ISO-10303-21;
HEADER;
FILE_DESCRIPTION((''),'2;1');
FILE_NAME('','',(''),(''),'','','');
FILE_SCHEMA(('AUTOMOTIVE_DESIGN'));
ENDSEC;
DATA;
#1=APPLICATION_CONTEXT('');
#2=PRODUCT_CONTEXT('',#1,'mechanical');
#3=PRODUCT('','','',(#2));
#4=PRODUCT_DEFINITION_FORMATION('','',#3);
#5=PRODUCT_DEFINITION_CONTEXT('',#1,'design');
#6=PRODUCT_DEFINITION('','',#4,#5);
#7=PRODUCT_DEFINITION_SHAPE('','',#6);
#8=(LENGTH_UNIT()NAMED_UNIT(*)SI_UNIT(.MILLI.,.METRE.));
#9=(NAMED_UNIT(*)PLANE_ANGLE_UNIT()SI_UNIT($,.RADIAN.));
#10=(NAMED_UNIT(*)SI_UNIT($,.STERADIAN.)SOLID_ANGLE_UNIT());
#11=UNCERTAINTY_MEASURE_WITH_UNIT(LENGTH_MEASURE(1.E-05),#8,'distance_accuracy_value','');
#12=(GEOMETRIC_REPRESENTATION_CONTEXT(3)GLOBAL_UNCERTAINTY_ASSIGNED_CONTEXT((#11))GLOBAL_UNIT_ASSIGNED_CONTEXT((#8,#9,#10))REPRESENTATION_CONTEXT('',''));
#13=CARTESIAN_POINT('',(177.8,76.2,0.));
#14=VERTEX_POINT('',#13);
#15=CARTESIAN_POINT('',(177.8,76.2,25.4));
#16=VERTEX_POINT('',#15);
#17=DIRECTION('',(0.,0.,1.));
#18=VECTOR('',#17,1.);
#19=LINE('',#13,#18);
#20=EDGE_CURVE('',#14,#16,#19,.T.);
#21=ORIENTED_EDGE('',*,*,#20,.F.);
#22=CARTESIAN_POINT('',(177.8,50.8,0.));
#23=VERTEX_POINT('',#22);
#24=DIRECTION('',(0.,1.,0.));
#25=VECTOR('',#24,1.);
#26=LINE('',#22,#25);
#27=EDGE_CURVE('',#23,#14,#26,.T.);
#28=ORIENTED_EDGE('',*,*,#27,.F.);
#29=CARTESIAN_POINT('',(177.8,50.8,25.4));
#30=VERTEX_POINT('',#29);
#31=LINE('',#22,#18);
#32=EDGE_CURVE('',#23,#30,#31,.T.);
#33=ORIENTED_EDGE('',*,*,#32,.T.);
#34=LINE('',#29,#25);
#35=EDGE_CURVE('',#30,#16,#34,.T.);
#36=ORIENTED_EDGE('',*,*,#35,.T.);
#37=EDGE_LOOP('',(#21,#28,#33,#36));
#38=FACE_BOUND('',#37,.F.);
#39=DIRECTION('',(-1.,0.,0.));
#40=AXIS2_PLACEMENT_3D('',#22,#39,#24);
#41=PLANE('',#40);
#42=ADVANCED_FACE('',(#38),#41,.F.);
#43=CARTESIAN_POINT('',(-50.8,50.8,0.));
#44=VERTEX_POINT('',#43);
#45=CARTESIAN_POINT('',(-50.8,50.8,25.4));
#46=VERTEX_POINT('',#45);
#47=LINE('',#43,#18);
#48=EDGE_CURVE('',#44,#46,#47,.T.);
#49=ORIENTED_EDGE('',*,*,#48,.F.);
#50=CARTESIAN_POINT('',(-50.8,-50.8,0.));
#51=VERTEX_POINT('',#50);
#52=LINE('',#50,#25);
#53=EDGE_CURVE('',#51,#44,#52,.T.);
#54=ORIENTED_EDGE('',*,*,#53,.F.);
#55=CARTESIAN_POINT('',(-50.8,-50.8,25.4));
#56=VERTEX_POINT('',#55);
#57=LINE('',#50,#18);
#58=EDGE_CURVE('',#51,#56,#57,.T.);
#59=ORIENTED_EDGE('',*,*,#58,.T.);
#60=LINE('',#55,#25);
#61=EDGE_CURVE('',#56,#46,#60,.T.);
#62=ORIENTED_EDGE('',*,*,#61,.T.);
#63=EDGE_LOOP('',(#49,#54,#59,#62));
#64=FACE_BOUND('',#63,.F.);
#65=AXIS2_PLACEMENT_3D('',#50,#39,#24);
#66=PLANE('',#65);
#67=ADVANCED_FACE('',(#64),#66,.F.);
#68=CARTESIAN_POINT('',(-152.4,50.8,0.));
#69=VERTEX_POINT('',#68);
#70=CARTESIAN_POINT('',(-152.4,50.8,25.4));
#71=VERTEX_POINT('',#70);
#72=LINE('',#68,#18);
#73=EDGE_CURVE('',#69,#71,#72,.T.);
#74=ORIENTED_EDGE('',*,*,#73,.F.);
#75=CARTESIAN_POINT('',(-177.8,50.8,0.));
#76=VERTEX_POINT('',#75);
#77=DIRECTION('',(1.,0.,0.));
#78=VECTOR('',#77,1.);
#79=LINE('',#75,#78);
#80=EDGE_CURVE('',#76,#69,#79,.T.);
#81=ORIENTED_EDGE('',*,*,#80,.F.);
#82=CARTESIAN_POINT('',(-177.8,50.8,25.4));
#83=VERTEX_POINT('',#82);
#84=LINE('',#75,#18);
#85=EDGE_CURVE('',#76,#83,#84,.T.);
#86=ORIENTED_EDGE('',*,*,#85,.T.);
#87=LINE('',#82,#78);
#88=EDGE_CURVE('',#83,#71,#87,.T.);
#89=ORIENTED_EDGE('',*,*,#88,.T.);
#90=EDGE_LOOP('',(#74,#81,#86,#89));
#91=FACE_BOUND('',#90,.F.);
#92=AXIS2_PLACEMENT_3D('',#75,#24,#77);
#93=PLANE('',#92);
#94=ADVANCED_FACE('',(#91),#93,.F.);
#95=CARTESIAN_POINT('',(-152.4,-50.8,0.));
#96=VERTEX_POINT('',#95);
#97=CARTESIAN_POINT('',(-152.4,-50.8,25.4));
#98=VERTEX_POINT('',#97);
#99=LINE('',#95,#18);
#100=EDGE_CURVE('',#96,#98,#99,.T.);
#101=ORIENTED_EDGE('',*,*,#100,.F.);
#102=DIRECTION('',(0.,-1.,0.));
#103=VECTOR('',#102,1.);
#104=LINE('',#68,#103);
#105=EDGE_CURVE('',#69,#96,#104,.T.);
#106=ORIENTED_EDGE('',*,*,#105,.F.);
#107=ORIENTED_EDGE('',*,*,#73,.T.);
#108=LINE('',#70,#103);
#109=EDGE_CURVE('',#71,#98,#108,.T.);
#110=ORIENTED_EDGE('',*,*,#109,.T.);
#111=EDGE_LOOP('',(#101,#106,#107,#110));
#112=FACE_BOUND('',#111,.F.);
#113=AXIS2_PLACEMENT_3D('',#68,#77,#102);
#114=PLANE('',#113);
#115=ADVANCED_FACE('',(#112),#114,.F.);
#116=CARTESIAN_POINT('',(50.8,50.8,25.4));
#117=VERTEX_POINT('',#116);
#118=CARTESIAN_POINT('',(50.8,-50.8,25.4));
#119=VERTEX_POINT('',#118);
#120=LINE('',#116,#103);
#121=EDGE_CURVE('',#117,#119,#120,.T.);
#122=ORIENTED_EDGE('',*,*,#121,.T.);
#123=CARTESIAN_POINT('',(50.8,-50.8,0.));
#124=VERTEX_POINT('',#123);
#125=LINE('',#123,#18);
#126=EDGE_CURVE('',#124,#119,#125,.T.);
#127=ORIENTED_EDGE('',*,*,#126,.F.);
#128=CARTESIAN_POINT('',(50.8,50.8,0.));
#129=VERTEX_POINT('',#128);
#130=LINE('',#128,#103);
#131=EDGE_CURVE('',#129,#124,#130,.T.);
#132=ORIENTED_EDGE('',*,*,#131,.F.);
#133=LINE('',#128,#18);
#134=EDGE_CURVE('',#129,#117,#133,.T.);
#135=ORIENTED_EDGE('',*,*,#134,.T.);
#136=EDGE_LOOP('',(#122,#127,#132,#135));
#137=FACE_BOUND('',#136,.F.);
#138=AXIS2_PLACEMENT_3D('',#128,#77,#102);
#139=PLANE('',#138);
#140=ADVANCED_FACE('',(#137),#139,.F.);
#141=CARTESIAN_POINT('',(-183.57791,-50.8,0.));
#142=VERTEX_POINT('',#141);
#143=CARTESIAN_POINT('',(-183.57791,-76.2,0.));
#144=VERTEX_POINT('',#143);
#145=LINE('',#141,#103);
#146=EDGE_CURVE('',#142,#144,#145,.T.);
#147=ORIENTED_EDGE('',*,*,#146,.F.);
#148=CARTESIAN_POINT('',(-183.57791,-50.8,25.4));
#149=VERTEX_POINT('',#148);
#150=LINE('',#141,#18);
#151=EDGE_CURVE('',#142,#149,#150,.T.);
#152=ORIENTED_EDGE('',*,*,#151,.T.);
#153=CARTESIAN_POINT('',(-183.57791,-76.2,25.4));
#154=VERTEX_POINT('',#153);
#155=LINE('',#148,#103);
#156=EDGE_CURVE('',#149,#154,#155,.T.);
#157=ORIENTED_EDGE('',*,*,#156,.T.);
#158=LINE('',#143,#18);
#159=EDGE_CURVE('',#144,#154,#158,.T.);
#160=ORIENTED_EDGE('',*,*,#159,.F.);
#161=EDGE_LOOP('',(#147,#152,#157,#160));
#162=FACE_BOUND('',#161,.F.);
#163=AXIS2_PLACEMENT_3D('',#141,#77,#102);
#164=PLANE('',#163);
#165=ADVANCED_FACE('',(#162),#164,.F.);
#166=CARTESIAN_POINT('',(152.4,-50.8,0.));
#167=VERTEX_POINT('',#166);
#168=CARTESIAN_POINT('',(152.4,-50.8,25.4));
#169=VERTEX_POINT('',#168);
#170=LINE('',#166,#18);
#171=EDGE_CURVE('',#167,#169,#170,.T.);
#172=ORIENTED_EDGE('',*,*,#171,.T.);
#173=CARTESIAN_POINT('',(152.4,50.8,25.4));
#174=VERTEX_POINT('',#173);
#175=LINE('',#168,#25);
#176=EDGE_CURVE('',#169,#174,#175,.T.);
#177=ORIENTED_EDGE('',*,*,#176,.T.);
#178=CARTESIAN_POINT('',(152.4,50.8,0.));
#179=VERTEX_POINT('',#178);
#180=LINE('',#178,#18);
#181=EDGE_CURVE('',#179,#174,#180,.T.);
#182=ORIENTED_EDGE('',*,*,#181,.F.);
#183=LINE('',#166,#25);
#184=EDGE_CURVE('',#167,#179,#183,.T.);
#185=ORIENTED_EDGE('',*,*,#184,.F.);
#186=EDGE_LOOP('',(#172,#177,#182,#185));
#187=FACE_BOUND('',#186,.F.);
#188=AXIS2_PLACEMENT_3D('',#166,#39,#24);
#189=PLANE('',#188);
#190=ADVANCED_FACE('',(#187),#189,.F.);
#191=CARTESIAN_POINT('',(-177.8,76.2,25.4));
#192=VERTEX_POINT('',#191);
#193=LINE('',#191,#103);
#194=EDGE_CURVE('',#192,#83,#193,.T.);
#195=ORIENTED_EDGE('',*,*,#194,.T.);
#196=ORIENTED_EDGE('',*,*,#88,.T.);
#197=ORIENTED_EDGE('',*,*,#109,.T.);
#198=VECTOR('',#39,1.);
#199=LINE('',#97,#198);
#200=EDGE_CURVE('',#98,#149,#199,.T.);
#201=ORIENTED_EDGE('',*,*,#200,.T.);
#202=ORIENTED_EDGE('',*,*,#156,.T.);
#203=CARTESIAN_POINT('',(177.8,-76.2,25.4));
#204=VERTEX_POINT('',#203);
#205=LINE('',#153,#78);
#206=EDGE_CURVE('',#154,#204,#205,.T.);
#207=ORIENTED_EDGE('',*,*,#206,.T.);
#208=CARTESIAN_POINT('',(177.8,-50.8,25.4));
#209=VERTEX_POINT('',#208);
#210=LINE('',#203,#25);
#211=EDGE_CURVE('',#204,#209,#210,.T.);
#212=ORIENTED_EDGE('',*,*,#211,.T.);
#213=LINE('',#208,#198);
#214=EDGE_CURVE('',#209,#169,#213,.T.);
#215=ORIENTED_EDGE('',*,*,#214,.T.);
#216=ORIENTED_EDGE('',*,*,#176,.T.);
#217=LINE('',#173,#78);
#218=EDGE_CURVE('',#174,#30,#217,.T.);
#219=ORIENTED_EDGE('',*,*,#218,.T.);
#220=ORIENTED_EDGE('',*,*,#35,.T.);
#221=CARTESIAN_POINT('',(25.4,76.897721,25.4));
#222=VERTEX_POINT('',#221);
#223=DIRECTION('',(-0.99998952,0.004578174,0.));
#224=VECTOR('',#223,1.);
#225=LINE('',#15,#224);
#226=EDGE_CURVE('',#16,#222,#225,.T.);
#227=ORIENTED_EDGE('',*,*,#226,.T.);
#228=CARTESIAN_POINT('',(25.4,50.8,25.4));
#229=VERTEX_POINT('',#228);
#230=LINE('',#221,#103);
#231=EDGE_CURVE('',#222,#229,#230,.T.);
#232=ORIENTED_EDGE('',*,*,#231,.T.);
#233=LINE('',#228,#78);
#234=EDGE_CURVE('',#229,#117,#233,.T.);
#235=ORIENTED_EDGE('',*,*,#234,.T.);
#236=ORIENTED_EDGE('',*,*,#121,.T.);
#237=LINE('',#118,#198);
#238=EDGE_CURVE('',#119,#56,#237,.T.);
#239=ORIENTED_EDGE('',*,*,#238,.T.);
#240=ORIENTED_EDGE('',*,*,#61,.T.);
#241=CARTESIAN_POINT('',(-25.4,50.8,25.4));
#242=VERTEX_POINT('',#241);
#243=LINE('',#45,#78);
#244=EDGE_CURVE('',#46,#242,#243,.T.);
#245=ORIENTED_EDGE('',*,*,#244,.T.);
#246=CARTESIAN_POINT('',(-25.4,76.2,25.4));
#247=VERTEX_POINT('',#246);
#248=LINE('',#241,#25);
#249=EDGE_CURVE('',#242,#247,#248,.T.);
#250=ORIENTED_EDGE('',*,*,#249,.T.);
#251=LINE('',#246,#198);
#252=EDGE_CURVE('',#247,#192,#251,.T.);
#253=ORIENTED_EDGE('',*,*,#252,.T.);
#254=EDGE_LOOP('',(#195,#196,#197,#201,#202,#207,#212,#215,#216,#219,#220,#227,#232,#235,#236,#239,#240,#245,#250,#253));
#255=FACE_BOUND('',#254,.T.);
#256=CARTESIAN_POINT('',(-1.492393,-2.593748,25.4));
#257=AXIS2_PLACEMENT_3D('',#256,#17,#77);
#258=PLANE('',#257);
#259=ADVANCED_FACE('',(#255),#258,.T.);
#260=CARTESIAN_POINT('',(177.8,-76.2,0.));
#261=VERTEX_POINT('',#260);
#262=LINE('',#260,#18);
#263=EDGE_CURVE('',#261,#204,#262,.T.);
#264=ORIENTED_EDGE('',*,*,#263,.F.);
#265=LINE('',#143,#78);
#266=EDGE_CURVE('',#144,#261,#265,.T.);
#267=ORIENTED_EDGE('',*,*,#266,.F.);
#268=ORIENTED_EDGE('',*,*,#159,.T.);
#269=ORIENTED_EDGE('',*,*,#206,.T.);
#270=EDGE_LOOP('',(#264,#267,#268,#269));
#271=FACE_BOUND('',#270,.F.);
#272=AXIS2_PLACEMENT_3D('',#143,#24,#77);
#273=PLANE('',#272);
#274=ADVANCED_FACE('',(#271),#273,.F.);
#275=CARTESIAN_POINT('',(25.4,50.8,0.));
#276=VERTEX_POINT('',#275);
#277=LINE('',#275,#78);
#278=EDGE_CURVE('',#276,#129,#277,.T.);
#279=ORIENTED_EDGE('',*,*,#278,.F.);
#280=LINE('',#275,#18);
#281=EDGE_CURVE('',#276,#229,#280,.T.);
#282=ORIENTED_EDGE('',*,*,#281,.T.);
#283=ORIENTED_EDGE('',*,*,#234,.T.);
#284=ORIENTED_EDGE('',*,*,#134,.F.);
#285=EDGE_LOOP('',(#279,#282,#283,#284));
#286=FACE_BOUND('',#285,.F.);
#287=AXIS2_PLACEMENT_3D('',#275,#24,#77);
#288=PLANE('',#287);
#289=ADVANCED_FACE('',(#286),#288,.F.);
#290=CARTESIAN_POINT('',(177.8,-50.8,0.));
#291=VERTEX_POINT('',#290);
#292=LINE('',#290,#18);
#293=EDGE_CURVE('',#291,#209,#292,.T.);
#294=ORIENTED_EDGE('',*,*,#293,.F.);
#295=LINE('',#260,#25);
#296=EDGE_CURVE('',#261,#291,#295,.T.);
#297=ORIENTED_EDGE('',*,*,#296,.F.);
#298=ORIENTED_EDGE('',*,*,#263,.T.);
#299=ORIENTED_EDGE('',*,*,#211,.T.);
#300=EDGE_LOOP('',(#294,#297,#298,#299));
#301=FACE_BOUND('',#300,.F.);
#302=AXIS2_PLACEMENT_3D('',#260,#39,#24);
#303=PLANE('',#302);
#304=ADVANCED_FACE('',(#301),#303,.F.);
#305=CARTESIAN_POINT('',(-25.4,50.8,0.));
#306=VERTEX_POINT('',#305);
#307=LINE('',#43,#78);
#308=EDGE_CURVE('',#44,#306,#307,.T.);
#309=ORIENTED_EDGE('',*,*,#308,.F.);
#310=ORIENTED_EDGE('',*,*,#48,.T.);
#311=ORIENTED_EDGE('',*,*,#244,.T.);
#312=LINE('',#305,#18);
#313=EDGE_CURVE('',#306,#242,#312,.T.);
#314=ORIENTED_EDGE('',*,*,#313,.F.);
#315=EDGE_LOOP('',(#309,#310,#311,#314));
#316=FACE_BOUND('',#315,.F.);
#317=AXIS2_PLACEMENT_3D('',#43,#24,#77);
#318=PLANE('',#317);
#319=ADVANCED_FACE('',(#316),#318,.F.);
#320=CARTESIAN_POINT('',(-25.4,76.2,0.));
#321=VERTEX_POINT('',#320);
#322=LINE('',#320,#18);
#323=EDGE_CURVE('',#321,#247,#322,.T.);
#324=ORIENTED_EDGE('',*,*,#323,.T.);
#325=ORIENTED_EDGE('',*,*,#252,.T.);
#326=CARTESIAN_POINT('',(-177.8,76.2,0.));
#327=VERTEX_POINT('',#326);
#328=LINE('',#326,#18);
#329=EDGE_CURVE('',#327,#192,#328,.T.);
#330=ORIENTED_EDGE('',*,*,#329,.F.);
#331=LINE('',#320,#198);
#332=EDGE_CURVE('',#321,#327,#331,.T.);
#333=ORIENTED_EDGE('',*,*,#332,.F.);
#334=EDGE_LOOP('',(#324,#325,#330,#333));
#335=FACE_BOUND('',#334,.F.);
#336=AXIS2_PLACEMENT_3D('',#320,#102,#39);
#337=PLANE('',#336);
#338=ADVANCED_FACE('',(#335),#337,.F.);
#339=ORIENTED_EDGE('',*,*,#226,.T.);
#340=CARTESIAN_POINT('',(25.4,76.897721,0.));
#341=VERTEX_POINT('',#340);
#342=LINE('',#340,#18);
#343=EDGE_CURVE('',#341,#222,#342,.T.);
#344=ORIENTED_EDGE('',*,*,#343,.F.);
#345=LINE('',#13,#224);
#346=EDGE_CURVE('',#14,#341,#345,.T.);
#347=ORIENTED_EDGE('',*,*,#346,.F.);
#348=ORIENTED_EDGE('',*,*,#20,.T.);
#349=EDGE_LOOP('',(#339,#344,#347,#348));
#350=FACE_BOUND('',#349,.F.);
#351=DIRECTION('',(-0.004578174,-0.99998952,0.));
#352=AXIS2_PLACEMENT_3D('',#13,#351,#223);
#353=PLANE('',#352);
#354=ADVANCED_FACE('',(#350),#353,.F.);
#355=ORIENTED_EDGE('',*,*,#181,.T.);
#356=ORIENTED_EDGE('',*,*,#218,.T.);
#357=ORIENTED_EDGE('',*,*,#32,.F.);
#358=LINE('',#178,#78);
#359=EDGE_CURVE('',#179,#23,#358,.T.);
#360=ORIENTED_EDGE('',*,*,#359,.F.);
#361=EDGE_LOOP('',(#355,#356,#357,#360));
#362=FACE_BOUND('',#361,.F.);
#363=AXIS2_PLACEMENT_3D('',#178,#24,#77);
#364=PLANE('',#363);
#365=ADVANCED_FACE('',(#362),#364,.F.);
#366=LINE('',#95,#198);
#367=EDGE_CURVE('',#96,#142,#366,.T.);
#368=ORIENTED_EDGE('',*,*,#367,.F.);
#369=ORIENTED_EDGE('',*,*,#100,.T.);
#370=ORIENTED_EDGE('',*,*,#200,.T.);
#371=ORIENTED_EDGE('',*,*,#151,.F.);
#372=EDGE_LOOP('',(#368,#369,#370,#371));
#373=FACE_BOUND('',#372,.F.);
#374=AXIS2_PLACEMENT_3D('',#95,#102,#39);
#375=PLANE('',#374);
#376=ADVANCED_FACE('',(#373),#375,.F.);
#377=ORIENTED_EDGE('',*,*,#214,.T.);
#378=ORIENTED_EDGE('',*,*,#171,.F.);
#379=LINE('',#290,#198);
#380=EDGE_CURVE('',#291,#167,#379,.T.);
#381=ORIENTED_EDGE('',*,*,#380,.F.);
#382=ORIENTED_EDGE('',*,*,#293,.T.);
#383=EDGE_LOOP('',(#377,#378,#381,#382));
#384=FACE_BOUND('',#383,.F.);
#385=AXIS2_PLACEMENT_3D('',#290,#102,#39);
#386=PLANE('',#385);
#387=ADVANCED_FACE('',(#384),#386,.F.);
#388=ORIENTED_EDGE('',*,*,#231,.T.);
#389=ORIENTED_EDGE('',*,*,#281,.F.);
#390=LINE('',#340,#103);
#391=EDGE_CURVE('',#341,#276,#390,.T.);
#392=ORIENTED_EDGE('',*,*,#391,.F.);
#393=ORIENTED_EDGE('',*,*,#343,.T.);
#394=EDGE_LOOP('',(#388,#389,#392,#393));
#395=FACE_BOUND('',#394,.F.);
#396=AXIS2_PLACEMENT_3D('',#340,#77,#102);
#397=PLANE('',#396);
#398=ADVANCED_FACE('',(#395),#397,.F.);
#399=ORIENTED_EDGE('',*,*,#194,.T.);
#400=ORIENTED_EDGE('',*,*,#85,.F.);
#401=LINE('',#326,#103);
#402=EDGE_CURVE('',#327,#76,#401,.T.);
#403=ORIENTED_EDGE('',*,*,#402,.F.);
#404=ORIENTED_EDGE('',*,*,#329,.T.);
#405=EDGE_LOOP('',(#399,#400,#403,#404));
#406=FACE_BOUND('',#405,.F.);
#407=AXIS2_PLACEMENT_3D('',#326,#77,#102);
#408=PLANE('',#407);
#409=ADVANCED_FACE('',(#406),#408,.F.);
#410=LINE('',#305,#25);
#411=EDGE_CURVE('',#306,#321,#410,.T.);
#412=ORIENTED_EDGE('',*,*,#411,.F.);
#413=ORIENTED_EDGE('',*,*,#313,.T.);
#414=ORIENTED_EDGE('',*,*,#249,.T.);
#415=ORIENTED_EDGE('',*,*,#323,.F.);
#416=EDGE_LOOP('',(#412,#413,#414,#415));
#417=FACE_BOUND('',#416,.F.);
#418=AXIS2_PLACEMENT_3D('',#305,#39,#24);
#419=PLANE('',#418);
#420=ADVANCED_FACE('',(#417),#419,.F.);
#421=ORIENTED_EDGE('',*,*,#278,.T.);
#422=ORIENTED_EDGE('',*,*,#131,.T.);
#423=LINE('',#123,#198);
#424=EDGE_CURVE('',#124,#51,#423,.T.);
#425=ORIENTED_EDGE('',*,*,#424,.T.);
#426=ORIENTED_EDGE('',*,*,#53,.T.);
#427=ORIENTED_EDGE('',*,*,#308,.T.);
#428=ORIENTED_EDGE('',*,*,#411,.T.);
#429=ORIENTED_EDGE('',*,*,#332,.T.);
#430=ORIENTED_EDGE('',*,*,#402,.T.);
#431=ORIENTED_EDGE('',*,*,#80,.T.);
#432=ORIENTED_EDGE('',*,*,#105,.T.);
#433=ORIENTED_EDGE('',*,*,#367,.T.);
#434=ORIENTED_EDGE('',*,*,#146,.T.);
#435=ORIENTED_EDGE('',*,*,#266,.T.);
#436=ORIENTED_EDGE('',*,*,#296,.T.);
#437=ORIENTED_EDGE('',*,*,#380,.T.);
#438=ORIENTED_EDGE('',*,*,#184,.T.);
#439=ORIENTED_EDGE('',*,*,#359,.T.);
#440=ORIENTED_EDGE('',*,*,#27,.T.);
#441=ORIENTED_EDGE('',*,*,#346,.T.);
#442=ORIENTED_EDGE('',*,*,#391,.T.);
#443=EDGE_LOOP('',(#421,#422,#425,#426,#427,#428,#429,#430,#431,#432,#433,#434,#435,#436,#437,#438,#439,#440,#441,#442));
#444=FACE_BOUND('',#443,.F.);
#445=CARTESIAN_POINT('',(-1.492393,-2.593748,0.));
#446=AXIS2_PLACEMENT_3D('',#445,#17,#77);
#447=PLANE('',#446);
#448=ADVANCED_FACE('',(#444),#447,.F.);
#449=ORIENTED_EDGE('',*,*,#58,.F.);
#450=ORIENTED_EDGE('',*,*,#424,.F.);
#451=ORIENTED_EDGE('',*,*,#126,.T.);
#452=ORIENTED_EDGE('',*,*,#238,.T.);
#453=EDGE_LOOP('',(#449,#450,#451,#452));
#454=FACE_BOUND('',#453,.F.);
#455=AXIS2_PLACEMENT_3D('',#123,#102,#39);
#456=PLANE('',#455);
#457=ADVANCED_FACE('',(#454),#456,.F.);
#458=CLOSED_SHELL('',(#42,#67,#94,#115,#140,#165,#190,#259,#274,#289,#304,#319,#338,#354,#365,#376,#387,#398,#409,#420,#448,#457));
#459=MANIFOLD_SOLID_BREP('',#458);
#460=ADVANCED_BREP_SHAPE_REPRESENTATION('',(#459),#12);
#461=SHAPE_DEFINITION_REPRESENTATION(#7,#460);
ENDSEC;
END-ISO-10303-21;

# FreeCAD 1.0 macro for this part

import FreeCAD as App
import Part
import Sketcher
Q = App.Units.Quantity


def add_polygon(sketch, points):
    """Adds a closed chain of lines whose ends are joined by coincident constraints."""
    first, n = sketch.GeometryCount, len(points)
    for a, b in zip(points, points[1:] + points[:1]):
        sketch.addGeometry(Part.LineSegment(App.Vector(*a, 0), App.Vector(*b, 0)), False)
    for i in range(n):
        sketch.addConstraint(Sketcher.Constraint("Coincident", first + i, 2, first + (i + 1) % n, 1))

doc = App.newDocument("Part")
params = doc.addObject("Spreadsheet::Sheet", "Params")
for row, (alias, value) in enumerate([
    ("sketch1_width", "4 in"),
    ("sketch1_width2", "1 in"),
    ("sketch1_width3", "6 in"),
    ("pad1_length", "1 in"),
], start=1):
    params.set(f"A{row}", alias)
    params.set(f"B{row}", "=" + value)
    params.setAlias(f"B{row}", alias)

body = doc.addObject("PartDesign::Body", "Body")

# Sketch on XY plane
sketch1 = body.newObject("Sketcher::SketchObject", "Sketch")
sketch1.AttachmentSupport = (doc.getObject("XY_Plane"), [""])
sketch1.MapMode = "FlatFace"
add_polygon(sketch1, [(51, 51), (51, -51), (-51, -51), (-51, 51), (-25, 51), (-25, 76), (-178, 76), (-178, 51), (-152, 51), (-152, -51), (-184, -51), (-184, -76), (178, -76), (178, -51), (152, -51), (152, 51), (178, 51), (178, 76), (25, 77), (25, 51)])  # lines 0-19
sketch1.addConstraint([
    Sketcher.Constraint("Vertical", 0),
    Sketcher.Constraint("Horizontal", 1),
    Sketcher.Constraint("Vertical", 2),
    Sketcher.Constraint("Horizontal", 3),
    Sketcher.Constraint("Vertical", 4),
    Sketcher.Constraint("Horizontal", 5),
    Sketcher.Constraint("Vertical", 6),
    Sketcher.Constraint("Horizontal", 7),
    Sketcher.Constraint("Vertical", 8),
    Sketcher.Constraint("Horizontal", 9),
    Sketcher.Constraint("Vertical", 10),
    Sketcher.Constraint("Horizontal", 11),
    Sketcher.Constraint("Vertical", 12),
    Sketcher.Constraint("Horizontal", 13),
    Sketcher.Constraint("Vertical", 14),
    Sketcher.Constraint("Horizontal", 15),
    Sketcher.Constraint("Vertical", 16),
    Sketcher.Constraint("Vertical", 18),
    Sketcher.Constraint("Horizontal", 19),
    Sketcher.Constraint("Symmetric", 0, 2, 2, 2, -1, 1),
    Sketcher.Constraint("Symmetric", 5, 2, 11, 2, -1, 1),
    Sketcher.Constraint("Symmetric", 7, 2, 13, 2, -1, 1),
    Sketcher.Constraint("Symmetric", 6, 2, 15, 2, -2),
    Sketcher.Constraint("Symmetric", 3, 2, 18, 2, -2),
    Sketcher.Constraint("Horizontal", 3, 2, 6, 2),
    Sketcher.Constraint("Horizontal", 1, 2, 8, 2),
    Sketcher.Constraint("Horizontal", 5, 2, 16, 2),
    Sketcher.Constraint("Equal", 3, 7),
    Sketcher.Constraint("Equal", 1, 0),
    Sketcher.Constraint("Equal", 19, 4),
    Sketcher.Constraint("DistanceX", 1, 2, 1, 1, Q("4 in")),
    Sketcher.Constraint("DistanceX", 3, 1, 3, 2, Q("1 in")),
    Sketcher.Constraint("DistanceX", 5, 2, 5, 1, Q("6 in")),
    Sketcher.Constraint("DistanceX", 9, 2, 9, 1, 31.17791),
    Sketcher.Constraint("DistanceY", 18, 2, 18, 1, 26.097721),
])
sketch1.setExpression("Constraints[50]", "Params.sketch1_width")
sketch1.setExpression("Constraints[51]", "Params.sketch1_width2")
sketch1.setExpression("Constraints[52]", "Params.sketch1_width3")
pad1 = body.newObject("PartDesign::Pad", "Pad")
pad1.Profile = sketch1
pad1.setExpression("Length", "Params.pad1_length")

doc.recompute()
